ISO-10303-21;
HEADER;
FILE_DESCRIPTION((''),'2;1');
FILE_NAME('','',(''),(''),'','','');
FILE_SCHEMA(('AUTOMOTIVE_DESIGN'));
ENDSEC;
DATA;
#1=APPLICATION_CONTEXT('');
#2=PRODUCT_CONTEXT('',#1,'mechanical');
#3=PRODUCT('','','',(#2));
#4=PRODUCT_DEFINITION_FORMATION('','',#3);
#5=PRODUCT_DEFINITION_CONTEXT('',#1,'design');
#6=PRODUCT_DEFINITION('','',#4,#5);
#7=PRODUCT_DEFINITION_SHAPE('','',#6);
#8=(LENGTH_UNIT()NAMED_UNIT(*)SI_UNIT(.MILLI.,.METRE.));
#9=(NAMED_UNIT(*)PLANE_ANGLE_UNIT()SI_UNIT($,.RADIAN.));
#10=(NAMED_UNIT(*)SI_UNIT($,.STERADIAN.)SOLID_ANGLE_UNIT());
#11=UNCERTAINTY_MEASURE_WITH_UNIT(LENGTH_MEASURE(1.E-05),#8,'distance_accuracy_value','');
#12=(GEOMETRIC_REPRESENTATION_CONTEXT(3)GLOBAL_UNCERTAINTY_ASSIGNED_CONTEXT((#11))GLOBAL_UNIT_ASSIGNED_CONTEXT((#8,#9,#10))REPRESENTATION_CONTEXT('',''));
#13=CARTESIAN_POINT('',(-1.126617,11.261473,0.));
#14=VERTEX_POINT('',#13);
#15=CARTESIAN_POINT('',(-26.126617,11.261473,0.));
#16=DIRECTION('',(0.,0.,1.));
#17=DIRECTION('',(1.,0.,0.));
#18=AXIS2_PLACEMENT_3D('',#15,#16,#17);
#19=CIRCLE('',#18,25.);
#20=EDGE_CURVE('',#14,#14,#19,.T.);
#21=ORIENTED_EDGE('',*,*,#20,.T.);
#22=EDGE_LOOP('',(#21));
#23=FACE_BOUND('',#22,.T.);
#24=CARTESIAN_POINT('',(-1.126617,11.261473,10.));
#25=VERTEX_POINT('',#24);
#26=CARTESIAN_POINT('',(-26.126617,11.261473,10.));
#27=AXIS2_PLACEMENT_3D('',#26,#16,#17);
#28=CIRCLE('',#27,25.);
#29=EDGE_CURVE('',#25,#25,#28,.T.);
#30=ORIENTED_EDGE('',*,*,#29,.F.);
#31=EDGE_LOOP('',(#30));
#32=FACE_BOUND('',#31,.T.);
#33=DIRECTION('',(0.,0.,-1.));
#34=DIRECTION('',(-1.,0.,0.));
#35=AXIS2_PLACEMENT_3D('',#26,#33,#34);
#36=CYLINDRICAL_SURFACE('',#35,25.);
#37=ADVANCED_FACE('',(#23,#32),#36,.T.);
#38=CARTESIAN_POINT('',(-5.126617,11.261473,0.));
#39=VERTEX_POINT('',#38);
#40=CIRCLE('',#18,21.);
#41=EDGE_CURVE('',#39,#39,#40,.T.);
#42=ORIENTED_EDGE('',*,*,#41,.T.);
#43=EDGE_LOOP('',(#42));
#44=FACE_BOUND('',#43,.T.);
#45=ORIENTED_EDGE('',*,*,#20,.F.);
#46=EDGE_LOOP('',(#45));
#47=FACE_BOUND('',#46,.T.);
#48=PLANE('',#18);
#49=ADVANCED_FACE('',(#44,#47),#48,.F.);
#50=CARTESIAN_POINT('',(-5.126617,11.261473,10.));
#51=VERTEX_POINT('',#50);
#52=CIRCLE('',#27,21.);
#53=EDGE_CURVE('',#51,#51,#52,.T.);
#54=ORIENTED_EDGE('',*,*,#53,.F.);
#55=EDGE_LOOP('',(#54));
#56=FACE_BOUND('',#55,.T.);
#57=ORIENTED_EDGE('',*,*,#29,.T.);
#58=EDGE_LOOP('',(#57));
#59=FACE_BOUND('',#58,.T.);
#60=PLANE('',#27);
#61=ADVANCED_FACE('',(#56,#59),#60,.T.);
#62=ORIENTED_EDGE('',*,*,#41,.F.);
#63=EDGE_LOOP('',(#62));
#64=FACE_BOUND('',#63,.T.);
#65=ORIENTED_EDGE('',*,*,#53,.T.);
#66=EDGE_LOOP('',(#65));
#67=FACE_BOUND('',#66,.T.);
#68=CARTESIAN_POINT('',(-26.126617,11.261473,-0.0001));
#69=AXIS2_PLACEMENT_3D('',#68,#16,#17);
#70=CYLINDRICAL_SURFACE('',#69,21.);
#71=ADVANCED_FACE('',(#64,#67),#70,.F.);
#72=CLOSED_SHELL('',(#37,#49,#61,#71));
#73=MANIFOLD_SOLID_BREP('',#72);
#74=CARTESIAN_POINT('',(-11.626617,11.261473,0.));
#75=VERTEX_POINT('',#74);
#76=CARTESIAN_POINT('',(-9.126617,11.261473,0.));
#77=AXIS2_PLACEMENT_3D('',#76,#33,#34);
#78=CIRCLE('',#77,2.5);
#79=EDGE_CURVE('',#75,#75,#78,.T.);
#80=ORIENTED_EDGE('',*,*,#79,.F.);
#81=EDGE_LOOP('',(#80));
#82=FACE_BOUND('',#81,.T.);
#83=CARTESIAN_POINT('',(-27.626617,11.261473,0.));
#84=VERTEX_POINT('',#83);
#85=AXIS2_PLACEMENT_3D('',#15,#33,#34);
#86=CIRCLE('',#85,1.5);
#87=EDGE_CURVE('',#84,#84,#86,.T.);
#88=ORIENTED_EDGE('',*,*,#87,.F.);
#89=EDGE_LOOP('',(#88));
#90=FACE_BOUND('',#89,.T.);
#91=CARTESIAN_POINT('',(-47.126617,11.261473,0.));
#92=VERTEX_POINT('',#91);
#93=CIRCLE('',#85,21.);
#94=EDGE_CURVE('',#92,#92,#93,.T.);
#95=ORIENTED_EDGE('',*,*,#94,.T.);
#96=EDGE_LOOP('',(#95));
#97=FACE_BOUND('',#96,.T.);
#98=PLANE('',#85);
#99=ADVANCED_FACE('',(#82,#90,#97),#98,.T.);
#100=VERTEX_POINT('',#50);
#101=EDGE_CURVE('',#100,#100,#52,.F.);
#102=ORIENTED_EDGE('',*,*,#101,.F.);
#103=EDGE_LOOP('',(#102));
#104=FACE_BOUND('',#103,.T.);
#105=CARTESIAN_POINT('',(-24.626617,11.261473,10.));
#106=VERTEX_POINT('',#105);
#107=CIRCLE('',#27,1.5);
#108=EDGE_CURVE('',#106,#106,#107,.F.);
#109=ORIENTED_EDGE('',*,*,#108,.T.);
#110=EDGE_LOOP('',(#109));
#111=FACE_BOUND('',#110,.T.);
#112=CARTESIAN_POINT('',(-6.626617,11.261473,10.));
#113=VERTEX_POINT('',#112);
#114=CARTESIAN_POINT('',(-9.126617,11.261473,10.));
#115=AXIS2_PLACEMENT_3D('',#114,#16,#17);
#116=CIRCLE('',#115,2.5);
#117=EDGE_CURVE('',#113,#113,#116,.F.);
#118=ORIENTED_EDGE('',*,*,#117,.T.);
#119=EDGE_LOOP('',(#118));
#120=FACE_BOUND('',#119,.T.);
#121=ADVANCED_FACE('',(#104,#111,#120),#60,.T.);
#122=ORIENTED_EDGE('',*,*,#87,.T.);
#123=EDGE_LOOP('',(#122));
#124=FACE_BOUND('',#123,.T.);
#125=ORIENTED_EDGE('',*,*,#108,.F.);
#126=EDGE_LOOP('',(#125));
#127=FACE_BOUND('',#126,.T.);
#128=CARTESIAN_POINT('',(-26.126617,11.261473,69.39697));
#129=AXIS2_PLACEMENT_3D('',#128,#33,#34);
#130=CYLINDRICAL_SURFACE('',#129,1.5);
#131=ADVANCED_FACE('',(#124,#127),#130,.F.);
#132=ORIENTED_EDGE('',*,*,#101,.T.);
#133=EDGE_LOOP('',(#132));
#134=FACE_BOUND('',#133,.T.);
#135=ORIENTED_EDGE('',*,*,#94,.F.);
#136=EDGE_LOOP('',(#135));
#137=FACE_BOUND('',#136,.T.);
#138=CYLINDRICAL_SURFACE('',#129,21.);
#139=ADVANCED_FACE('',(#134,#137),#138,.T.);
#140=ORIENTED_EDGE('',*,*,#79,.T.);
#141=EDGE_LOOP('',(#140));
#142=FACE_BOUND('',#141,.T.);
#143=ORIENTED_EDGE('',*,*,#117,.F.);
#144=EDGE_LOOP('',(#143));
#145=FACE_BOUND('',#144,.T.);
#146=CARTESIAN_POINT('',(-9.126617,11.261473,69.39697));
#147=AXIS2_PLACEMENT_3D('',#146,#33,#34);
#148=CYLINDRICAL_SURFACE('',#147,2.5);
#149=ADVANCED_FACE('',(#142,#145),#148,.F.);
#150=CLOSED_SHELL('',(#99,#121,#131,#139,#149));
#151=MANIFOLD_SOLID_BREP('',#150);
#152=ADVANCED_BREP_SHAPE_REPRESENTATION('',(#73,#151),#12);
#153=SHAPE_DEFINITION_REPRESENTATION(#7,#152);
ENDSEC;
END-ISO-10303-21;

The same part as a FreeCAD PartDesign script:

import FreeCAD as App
import Part
import Sketcher

V = App.Vector
Q = App.Units.Quantity

doc = App.newDocument("Part")
body = doc.addObject("PartDesign::Body", "Body")

# Sketch on XY plane
sketch1 = body.newObject("Sketcher::SketchObject", "Sketch")
sketch1.AttachmentSupport = (doc.getObject("XY_Plane"), [""])
sketch1.MapMode = "FlatFace"
sketch1.addGeometry(Part.Circle(V(-26, 11, 0), V(0, 0, 1), 25), False)
sketch1.addConstraint([
    Sketcher.Constraint("Diameter", 0, Q("50 mm")),
    Sketcher.Constraint("DistanceX", 0, 3, -1, 1, Q("26.126617 mm")),
    Sketcher.Constraint("DistanceY", -1, 1, 0, 3, Q("11.261473 mm")),
])
pad1 = body.newObject("PartDesign::Pad", "Pad")
pad1.Profile = sketch1
pad1.Length = 10
body2 = doc.addObject("PartDesign::Body", "Body001")

# Sketch on XY plane
sketch2 = body2.newObject("Sketcher::SketchObject", "Sketch001")
sketch2.AttachmentSupport = (doc.getObject("XY_Plane001"), [""])
sketch2.MapMode = "FlatFace"
sketch2.AttachmentOffset = App.Placement(V(0, 0, 10), App.Rotation())
sketch2.addGeometry(Part.Circle(V(-26, 11, 0), V(0, 0, 1), 21), False)
sketch2.addConstraint([
    Sketcher.Constraint("Diameter", 0, Q("42 mm")),
    Sketcher.Constraint("DistanceX", 0, 3, -1, 1, Q("26.126617 mm")),
    Sketcher.Constraint("DistanceY", -1, 1, 0, 3, Q("11.261473 mm")),
])
pad2 = body2.newObject("PartDesign::Pad", "Pad001")
pad2.Profile = sketch2
pad2.Length = 10.0001
pad2.Reversed = True
doc.recompute()

boolean = body.newObject("PartDesign::Boolean", "Boolean")
boolean.Type = "Cut"
boolean.addObjects([body2])
body3 = doc.addObject("PartDesign::Body", "Body002")

# Sketch on XY plane
sketch3 = body3.newObject("Sketcher::SketchObject", "Sketch002")
sketch3.AttachmentSupport = (doc.getObject("XY_Plane002"), [""])
sketch3.MapMode = "FlatFace"
sketch3.addGeometry([
    Part.Circle(V(-26.1, 11.3, 0), V(0, 0, 1), 21),
    Part.Circle(V(-9.1, 11.3, 0), V(0, 0, 1), 2.5),
    Part.Circle(V(-26.1, 11.3, 0), V(0, 0, 1), 1.5),
], False)
sketch3.addConstraint([
    Sketcher.Constraint("Coincident", 2, 3, 0, 3),
    Sketcher.Constraint("Horizontal", 0, 3, 1, 3),
    Sketcher.Constraint("Diameter", 0, Q("42 mm")),
    Sketcher.Constraint("Diameter", 1, Q("5 mm")),
    Sketcher.Constraint("Diameter", 2, Q("3 mm")),
    Sketcher.Constraint("DistanceX", 0, 3, 1, 3, Q("17 mm")),
    Sketcher.Constraint("DistanceX", 0, 3, -1, 1, Q("26.126617 mm")),
    Sketcher.Constraint("DistanceY", -1, 1, 0, 3, Q("11.261473 mm")),
])
pad3 = body3.newObject("PartDesign::Pad", "Pad002")
pad3.Profile = sketch3
pad3.Length = 10

doc.recompute()
